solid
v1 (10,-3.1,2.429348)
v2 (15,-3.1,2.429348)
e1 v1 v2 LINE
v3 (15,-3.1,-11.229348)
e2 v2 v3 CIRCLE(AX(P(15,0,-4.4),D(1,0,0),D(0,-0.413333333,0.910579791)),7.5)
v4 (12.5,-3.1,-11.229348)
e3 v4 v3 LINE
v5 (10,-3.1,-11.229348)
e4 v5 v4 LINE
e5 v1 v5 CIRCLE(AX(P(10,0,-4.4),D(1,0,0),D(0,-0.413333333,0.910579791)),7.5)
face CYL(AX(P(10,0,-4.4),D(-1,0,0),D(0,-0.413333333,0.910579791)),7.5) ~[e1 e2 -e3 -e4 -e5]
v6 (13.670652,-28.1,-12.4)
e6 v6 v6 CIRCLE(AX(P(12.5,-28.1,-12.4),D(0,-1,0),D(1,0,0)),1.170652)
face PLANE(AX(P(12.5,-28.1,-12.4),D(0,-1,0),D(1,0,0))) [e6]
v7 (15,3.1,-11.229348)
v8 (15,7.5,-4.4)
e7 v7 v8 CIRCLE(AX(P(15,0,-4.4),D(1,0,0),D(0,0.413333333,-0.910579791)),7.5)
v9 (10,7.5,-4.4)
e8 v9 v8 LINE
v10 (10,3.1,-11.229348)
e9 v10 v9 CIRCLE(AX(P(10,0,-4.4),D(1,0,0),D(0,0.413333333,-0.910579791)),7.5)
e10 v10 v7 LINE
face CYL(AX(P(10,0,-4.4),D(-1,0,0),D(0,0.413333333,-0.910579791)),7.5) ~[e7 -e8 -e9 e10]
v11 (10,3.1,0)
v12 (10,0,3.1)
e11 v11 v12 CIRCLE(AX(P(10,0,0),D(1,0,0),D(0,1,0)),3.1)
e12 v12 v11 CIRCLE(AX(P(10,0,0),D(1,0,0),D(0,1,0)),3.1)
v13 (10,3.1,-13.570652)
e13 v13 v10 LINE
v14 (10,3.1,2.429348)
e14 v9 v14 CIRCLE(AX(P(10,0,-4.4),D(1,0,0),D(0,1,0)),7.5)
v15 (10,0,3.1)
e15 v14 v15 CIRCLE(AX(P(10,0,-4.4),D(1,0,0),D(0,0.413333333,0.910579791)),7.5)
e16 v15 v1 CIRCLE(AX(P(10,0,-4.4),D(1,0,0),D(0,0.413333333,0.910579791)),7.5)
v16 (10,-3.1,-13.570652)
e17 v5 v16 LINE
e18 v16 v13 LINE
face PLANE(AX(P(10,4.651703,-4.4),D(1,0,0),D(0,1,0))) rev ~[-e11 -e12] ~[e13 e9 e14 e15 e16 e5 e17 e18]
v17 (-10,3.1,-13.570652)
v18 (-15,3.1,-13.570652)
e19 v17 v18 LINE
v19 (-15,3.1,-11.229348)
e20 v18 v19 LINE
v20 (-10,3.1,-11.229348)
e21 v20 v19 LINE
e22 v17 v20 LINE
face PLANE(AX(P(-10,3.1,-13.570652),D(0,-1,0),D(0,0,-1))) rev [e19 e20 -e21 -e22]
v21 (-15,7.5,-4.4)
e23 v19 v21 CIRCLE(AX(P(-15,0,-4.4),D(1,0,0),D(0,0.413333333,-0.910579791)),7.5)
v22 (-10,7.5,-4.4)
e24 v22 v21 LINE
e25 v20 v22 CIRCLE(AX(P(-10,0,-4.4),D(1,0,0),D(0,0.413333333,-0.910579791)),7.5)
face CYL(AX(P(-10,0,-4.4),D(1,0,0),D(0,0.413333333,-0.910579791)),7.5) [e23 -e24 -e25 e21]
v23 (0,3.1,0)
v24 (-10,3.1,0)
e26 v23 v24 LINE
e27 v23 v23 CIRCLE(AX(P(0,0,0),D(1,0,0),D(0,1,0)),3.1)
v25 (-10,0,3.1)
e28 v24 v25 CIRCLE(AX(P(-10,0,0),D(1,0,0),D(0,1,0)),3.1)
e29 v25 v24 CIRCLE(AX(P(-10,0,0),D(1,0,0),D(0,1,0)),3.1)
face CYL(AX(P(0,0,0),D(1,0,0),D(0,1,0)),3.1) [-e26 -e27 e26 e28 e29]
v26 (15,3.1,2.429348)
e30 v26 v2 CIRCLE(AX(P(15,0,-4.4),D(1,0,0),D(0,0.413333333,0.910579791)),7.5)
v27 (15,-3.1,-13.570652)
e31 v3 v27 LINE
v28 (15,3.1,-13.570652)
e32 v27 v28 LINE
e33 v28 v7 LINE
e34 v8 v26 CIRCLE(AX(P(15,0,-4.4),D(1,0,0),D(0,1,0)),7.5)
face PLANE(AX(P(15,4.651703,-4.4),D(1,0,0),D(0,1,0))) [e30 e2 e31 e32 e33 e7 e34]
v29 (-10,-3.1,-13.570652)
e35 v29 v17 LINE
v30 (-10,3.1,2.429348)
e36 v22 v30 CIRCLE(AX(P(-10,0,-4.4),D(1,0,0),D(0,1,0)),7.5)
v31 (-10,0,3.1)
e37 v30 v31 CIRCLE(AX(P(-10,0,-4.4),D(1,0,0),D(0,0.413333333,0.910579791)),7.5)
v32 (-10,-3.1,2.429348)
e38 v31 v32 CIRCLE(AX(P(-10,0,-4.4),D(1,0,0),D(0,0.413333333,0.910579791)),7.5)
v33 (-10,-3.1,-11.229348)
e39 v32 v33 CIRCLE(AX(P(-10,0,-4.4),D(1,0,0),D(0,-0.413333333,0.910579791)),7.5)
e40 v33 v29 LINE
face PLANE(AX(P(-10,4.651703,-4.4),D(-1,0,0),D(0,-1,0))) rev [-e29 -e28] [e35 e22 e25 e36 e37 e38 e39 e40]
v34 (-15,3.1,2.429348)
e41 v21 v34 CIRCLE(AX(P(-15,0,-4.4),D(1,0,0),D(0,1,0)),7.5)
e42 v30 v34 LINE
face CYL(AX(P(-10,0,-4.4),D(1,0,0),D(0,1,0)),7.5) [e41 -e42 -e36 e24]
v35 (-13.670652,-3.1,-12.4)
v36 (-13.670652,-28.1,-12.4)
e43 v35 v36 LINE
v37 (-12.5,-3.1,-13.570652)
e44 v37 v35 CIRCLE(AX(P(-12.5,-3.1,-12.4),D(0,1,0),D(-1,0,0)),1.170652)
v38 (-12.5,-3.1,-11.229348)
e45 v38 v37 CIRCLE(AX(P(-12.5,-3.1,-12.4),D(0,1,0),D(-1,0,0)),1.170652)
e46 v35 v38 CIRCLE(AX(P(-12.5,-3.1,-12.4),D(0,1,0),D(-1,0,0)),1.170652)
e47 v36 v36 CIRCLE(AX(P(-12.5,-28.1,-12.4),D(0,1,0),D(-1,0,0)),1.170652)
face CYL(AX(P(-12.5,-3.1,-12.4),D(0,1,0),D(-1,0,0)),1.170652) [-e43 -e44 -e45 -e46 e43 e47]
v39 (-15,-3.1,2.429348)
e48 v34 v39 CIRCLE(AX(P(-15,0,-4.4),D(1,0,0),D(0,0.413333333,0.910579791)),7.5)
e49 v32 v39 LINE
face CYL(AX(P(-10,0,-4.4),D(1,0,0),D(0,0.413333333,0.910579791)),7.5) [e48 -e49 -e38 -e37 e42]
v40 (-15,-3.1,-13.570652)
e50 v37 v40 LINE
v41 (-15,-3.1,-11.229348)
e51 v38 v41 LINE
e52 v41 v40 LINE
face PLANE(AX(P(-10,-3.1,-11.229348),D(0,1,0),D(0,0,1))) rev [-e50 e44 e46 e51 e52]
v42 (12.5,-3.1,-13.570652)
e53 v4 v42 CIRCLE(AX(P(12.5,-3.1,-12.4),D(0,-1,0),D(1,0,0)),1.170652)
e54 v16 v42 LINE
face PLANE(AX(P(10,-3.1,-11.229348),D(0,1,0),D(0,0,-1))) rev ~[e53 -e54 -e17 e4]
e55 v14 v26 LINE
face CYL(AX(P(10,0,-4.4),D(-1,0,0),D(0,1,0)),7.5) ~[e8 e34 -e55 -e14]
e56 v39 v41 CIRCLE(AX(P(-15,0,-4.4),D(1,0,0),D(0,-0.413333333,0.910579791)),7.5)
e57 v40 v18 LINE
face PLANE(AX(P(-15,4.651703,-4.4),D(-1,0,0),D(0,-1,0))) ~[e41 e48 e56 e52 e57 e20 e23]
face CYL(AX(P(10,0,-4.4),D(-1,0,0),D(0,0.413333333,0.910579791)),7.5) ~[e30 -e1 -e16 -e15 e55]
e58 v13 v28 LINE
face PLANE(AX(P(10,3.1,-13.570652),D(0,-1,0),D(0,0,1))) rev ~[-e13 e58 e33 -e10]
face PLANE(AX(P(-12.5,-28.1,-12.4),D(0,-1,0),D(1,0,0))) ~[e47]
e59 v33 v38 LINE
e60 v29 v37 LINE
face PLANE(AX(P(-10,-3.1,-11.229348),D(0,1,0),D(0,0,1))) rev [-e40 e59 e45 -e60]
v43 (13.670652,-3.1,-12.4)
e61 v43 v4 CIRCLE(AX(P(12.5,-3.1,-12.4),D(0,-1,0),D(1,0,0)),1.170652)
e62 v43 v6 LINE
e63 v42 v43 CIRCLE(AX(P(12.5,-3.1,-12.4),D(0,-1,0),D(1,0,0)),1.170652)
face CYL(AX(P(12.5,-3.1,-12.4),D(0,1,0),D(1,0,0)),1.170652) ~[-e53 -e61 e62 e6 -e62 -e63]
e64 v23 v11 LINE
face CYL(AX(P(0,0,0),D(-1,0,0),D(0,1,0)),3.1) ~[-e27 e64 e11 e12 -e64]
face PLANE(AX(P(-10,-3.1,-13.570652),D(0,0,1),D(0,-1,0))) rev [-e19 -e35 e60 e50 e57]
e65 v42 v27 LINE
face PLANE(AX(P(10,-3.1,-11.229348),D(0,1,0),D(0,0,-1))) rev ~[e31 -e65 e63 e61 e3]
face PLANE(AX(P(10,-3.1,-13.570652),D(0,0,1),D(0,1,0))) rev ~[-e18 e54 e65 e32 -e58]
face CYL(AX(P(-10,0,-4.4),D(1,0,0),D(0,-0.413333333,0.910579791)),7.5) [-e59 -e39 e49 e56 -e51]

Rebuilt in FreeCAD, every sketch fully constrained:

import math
import FreeCAD as App
import Part
import Sketcher

V = App.Vector

doc = App.newDocument("Part")
body = doc.addObject("PartDesign::Body", "Body")

# Sketch on YZ plane
sketch1 = body.newObject("Sketcher::SketchObject", "Sketch")
sketch1.AttachmentSupport = (doc.getObject("YZ_Plane"), [""])
sketch1.MapMode = "FlatFace"
sketch1.addGeometry(Part.Circle(V(0, 0, 0), V(0, 0, 1), 3.1), False)
sketch1.addConstraint([
    Sketcher.Constraint("Coincident", 0, 3, -1, 1),
    Sketcher.Constraint("Diameter", 0, 6.2),
])
pad1 = body.newObject("PartDesign::Pad", "Pad")
pad1.Profile = sketch1
pad1.Length = 10

# Sketch on YZ plane
sketch2 = body.newObject("Sketcher::SketchObject", "Sketch001")
sketch2.AttachmentSupport = (doc.getObject("YZ_Plane"), [""])
sketch2.MapMode = "FlatFace"
sketch2.AttachmentOffset = App.Placement(V(0, 0, 10), App.Rotation())
sketch2.addGeometry([
    Part.ArcOfCircle(Part.Circle(V(0, -4.4, 0), V(0, 0, 1), 7.5), math.radians(-66), math.radians(0)),  # 0
    Part.ArcOfCircle(Part.Circle(V(0, -4.4, 0), V(0, 0, 1), 7.5), math.radians(0), math.radians(66)),  # 1
    Part.ArcOfCircle(Part.Circle(V(0, -4.4, 0), V(0, 0, 1), 7.5), math.radians(66), math.radians(114)),  # 2
    Part.ArcOfCircle(Part.Circle(V(0, -4.4, 0), V(0, 0, 1), 7.5), math.radians(114), math.radians(246)),  # 3
    Part.LineSegment(V(-3.1, -11.2, 0), V(-3.1, -13.6, 0)),  # 4
    Part.LineSegment(V(-3.1, -13.6, 0), V(3.1, -13.6, 0)),  # 5
    Part.LineSegment(V(3.1, -13.6, 0), V(3.1, -11.2, 0)),  # 6
], False)
sketch2.addConstraint([
    Sketcher.Constraint("Tangent", 0, 2, 1, 1),
    Sketcher.Constraint("Tangent", 1, 2, 2, 1),
    Sketcher.Constraint("Tangent", 2, 2, 3, 1),
    Sketcher.Constraint("Coincident", 3, 2, 4, 1),
    Sketcher.Constraint("Coincident", 4, 2, 5, 1),
    Sketcher.Constraint("Coincident", 5, 2, 6, 1),
    Sketcher.Constraint("Coincident", 6, 2, 0, 1),
    Sketcher.Constraint("Vertical", 4),
    Sketcher.Constraint("Horizontal", 5),
    Sketcher.Constraint("Vertical", 6),
    Sketcher.Constraint("Coincident", 2, 3, 0, 3),
    Sketcher.Constraint("Equal", 2, 3),
    Sketcher.Constraint("Symmetric", 1, 2, 2, 2, -2),
    Sketcher.Constraint("Horizontal", 3, 3, 0, 2),
    Sketcher.Constraint("Horizontal", 3, 2, 6, 2),
    Sketcher.Constraint("Vertical", 2, 2, 3, 2),
    Sketcher.Constraint("Radius", 0, 7.5),
    Sketcher.Constraint("DistanceX", 5, 1, 5, 2, 6.2),
    Sketcher.Constraint("DistanceY", 0, 3, -1, 1, 4.4),
    Sketcher.Constraint("DistanceY", 4, 2, 4, 1, 2.341303),
])
pad2 = body.newObject("PartDesign::Pad", "Pad001")
pad2.Profile = sketch2
pad2.Length = 5

# Sketch on XZ plane
sketch3 = body.newObject("Sketcher::SketchObject", "Sketch002")
sketch3.AttachmentSupport = (doc.getObject("XZ_Plane"), [""])
sketch3.MapMode = "FlatFace"
sketch3.AttachmentOffset = App.Placement(V(0, 0, 3.1), App.Rotation())
sketch3.addGeometry(Part.Circle(V(12.5, -12.4, 0), V(0, 0, 1), 1.2), False)
sketch3.addConstraint([
    Sketcher.Constraint("DistanceX", -1, 1, 0, 3, 12.5),
    Sketcher.Constraint("DistanceY", 0, 3, -1, 1, 12.4),
    Sketcher.Constraint("Diameter", 0, 2.341303),
])
pad3 = body.newObject("PartDesign::Pad", "Pad002")
pad3.Profile = sketch3
pad3.Length = 25
body2 = doc.addObject("PartDesign::Body", "Body001")
doc.recompute()

body2.BaseFeature = body
doc.recompute()

mirroring = doc.addObject("Part::Mirroring", "Mirroring")
mirroring.Source = body
mirroring.Base = V(0, 0, 0)
mirroring.Normal = V(-1, 0, 0)
body3 = doc.addObject("PartDesign::Body", "Body002")
body3.BaseFeature = mirroring
boolean = body2.newObject("PartDesign::Boolean", "Boolean")
boolean.Type = "Fuse"
boolean.addObjects([body3])
doc.recompute()
mirroring.Visibility = False

doc.recompute()
